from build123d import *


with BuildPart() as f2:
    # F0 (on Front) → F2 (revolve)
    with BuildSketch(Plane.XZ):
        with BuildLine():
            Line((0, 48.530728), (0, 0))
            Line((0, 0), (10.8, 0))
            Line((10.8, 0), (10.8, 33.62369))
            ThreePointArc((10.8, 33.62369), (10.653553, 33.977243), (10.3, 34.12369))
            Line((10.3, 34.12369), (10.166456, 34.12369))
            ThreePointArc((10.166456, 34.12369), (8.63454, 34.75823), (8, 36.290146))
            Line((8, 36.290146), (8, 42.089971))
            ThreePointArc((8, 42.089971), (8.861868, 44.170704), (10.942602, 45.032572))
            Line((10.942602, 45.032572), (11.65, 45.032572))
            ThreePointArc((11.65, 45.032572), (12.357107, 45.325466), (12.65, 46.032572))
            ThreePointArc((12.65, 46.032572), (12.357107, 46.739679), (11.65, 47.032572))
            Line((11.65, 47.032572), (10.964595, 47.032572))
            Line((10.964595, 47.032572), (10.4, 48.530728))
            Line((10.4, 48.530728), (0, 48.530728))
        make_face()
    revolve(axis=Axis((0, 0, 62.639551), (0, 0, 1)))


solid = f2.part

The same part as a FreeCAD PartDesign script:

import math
import FreeCAD as App
import Part
import Sketcher
from FreeCAD import Vector

doc = App.newDocument("Part")
body = doc.addObject("PartDesign::Body", "Body")

# Sketch on XZ plane
sketch1 = body.newObject("Sketcher::SketchObject", "Sketch")
sketch1.AttachmentSupport = (doc.getObject("XZ_Plane"), [""])
sketch1.MapMode = "FlatFace"
sketch1.addGeometry([
    Part.LineSegment(Vector(0, 48.53, 0), Vector(0, 0, 0)),  # 0
    Part.LineSegment(Vector(0, 0, 0), Vector(10.8, 0, 0)),  # 1
    Part.LineSegment(Vector(10.8, 0, 0), Vector(10.8, 33.62, 0)),  # 2
    Part.ArcOfCircle(Part.Circle(Vector(10.3, 33.62, 0), Vector(0, 0, 1), 0.5), math.radians(0), math.radians(90)),  # 3
    Part.LineSegment(Vector(10.3, 34.12, 0), Vector(10.17, 34.12, 0)),  # 4
    Part.ArcOfCircle(Part.Circle(Vector(10.17, 36.29, 0), Vector(0, 0, 1), 2.17), math.radians(180), math.radians(270)),  # 5
    Part.LineSegment(Vector(8, 36.29, 0), Vector(8, 42.09, 0)),  # 6
    Part.ArcOfCircle(Part.Circle(Vector(10.94, 42.09, 0), Vector(0, 0, 1), 2.94), math.radians(90), math.radians(180)),  # 7
    Part.LineSegment(Vector(10.94, 45.03, 0), Vector(11.65, 45.03, 0)),  # 8
    Part.ArcOfCircle(Part.Circle(Vector(11.65, 46.03, 0), Vector(0, 0, 1), 1), math.radians(-90), math.radians(0)),  # 9
    Part.ArcOfCircle(Part.Circle(Vector(11.65, 46.03, 0), Vector(0, 0, 1), 1), math.radians(0), math.radians(90)),  # 10
    Part.LineSegment(Vector(11.65, 47.03, 0), Vector(10.96, 47.03, 0)),  # 11
    Part.LineSegment(Vector(10.96, 47.03, 0), Vector(10.4, 48.53, 0)),  # 12
    Part.LineSegment(Vector(10.4, 48.53, 0), Vector(0, 48.53, 0)),  # 13
], False)
sketch1.addConstraint([
    Sketcher.Constraint("Coincident", 0, 2, 1, 1),
    Sketcher.Constraint("Coincident", 1, 2, 2, 1),
    Sketcher.Constraint("Coincident", 2, 2, 3, 1),
    Sketcher.Constraint("Coincident", 3, 2, 4, 1),
    Sketcher.Constraint("Tangent", 4, 2, 5, 2),
    Sketcher.Constraint("Tangent", 5, 1, 6, 1),
    Sketcher.Constraint("Tangent", 6, 2, 7, 2),
    Sketcher.Constraint("Tangent", 7, 1, 8, 1),
    Sketcher.Constraint("Tangent", 8, 2, 9, 1),
    Sketcher.Constraint("Tangent", 9, 2, 10, 1),
    Sketcher.Constraint("Tangent", 10, 2, 11, 1),
    Sketcher.Constraint("Coincident", 11, 2, 12, 1),
    Sketcher.Constraint("Coincident", 12, 2, 13, 1),
    Sketcher.Constraint("Coincident", 13, 2, 0, 1),
    Sketcher.Constraint("Vertical", 0),
    Sketcher.Constraint("Horizontal", 1),
    Sketcher.Constraint("Vertical", 2),
    Sketcher.Constraint("Horizontal", 4),
    Sketcher.Constraint("Vertical", 6),
    Sketcher.Constraint("Horizontal", 8),
    Sketcher.Constraint("Horizontal", 11),
    Sketcher.Constraint("Horizontal", 13),
    Sketcher.Constraint("Coincident", 0, 2, -1, 1),
    Sketcher.Constraint("Equal", 9, 10),
    Sketcher.Constraint("Horizontal", 3, 3, 2, 2),
    Sketcher.Constraint("Horizontal", 10, 3, 9, 2),
    Sketcher.Constraint("Radius", 9, 1.000001),
    Sketcher.Constraint("Radius", 3, 0.500001),
    Sketcher.Constraint("DistanceX", 1, 1, 1, 2, 10.8),
    Sketcher.Constraint("DistanceX", 13, 2, 13, 1, 10.4),
    Sketcher.Constraint("DistanceX", -1, 1, 5, 1, 8.0),
    Sketcher.Constraint("DistanceX", -1, 1, 3, 2, 10.3),
    Sketcher.Constraint("Radius", 7, 2.942601),
    Sketcher.Constraint("DistanceX", -1, 1, 9, 3, 11.649999),
    Sketcher.Constraint("Radius", 5, 2.166455),
    Sketcher.Constraint("DistanceY", 0, 2, 0, 1, 48.530728),
    Sketcher.Constraint("DistanceY", 2, 1, 2, 2, 33.62369),
    Sketcher.Constraint("Distance", 12, 1.601012),
    Sketcher.Constraint("DistanceX", 11, 2, 11, 1, 0.685405),
])
revolution = body.newObject("PartDesign::Revolution", "Revolution")
revolution.Profile = sketch1
revolution.ReferenceAxis = (sketch1, ["V_Axis"])
revolution.Angle = 360

doc.recompute()
